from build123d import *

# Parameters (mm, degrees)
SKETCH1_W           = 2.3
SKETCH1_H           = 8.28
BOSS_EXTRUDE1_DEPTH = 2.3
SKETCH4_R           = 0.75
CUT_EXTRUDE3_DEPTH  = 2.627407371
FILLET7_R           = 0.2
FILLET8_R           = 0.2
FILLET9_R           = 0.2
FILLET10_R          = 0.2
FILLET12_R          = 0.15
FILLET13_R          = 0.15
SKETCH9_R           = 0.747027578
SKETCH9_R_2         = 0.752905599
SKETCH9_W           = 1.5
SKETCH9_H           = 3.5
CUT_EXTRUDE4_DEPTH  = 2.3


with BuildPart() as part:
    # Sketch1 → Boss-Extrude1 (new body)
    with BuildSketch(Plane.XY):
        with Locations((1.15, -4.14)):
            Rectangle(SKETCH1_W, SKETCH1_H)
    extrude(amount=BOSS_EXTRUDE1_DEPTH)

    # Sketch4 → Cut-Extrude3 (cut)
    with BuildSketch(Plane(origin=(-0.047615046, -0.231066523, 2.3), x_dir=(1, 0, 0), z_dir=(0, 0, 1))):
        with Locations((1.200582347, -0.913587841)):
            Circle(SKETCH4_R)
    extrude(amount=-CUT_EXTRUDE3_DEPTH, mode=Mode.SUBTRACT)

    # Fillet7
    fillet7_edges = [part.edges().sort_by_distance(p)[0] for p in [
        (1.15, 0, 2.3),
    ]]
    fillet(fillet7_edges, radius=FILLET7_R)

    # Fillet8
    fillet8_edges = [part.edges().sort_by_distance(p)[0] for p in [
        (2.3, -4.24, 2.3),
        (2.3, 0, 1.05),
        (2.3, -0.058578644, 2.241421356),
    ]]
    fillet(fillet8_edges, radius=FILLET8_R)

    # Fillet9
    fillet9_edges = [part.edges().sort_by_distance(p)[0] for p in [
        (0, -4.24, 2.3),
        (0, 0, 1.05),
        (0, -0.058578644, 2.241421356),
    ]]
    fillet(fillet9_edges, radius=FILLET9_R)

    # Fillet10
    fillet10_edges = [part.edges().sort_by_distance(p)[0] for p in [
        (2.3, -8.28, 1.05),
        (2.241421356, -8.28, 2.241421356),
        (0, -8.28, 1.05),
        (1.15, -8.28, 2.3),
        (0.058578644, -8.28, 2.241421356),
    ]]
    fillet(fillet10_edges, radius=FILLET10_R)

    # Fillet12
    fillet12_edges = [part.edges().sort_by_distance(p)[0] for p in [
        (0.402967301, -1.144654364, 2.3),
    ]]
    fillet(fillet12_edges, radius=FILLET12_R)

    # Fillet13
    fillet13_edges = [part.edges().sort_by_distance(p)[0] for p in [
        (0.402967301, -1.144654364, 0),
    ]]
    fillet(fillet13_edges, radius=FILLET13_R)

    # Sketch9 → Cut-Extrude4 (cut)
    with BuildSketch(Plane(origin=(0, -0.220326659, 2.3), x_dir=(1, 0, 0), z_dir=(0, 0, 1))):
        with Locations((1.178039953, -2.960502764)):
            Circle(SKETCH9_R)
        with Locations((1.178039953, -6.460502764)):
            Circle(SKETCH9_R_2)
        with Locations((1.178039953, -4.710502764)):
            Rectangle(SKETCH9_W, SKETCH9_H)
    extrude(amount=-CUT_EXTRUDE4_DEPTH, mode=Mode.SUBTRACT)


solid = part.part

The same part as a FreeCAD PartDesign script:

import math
import FreeCAD as App
import Part
import Sketcher
from FreeCAD import Vector
Q = App.Units.Quantity


def edges_at(feature, points):
    """Names of the edges that pass closest to the given points."""
    edges = feature.Shape.Edges
    near = lambda p: min(range(len(edges)), key=lambda i: edges[i].distToShape(Part.Vertex(*p))[0])
    return sorted({f"Edge{near(p) + 1}" for p in points})


def add_polygon(sketch, points):
    """Adds a closed chain of lines whose ends are joined by coincident constraints."""
    first, n = sketch.GeometryCount, len(points)
    for a, b in zip(points, points[1:] + points[:1]):
        sketch.addGeometry(Part.LineSegment(App.Vector(*a, 0), App.Vector(*b, 0)), False)
    for i in range(n):
        sketch.addConstraint(Sketcher.Constraint("Coincident", first + i, 2, first + (i + 1) % n, 1))

doc = App.newDocument("Part")
body = doc.addObject("PartDesign::Body", "Body")

# Sketch on XY plane
sketch1 = doc.addObject("Sketcher::SketchObject", "Sketch")
body.addObject(sketch1)
sketch1.AttachmentSupport = (doc.XY_Plane, [""])
sketch1.MapMode = "FlatFace"
add_polygon(sketch1, [(0, 0), (0, -8.3), (2.3, -8.3), (2.3, 0)])  # lines 0-3
sketch1.addConstraint(Sketcher.Constraint("Vertical", 0))
sketch1.addConstraint(Sketcher.Constraint("Horizontal", 1))
sketch1.addConstraint(Sketcher.Constraint("Vertical", 2))
sketch1.addConstraint(Sketcher.Constraint("Horizontal", 3))
sketch1.addConstraint(Sketcher.Constraint("Coincident", 3, 2, -1, 1))
sketch1.addConstraint(Sketcher.Constraint("DistanceX", 1, 1, 1, 2, Q("2.3 mm")))
sketch1.addConstraint(Sketcher.Constraint("DistanceY", 0, 2, 0, 1, Q("8.28 mm")))
pad1 = doc.addObject("PartDesign::Pad", "Pad")
body.addObject(pad1)
pad1.Profile = sketch1
pad1.Length = 2.3

# Sketch on XY plane
sketch2 = doc.addObject("Sketcher::SketchObject", "Sketch001")
body.addObject(sketch2)
sketch2.AttachmentSupport = (doc.XY_Plane, [""])
sketch2.MapMode = "FlatFace"
sketch2.AttachmentOffset = App.Placement(Vector(0, 0, 2.3), App.Rotation())
sketch2.addGeometry(Part.Circle(Vector(1.2, -1.1, 0), Vector(0, 0, 1), 0.8), False)
sketch2.addConstraint(Sketcher.Constraint("Diameter", 0, Q("1.5 mm")))
sketch2.addConstraint(Sketcher.Constraint("DistanceX", -1, 1, 0, 3, Q("1.152967 mm")))
sketch2.addConstraint(Sketcher.Constraint("DistanceY", 0, 3, -1, 1, Q("1.144654 mm")))
pocket1 = doc.addObject("PartDesign::Pocket", "Pocket")
body.addObject(pocket1)
pocket1.Profile = sketch2
pocket1.Length = 2.627407
doc.recompute()

fillet = doc.addObject("PartDesign::Fillet", "Fillet")
body.addObject(fillet)
fillet.Base = (pocket1, edges_at(pocket1, [(1.15, 0, 2.3)]))
fillet.Radius = 0.2
doc.recompute()

fillet2 = doc.addObject("PartDesign::Fillet", "Fillet001")
body.addObject(fillet2)
fillet2.Base = (fillet, edges_at(fillet, [(2.3, -4.24, 2.3), (2.3, 0, 1.05), (2.3, -0.059, 2.241)]))
fillet2.Radius = 0.2
doc.recompute()

fillet3 = doc.addObject("PartDesign::Fillet", "Fillet002")
body.addObject(fillet3)
fillet3.Base = (fillet2, edges_at(fillet2, [(0, -4.24, 2.3), (0, 0, 1.05), (0, -0.059, 2.241)]))
fillet3.Radius = 0.2
doc.recompute()

fillet4 = doc.addObject("PartDesign::Fillet", "Fillet003")
body.addObject(fillet4)
fillet4.Base = (fillet3, edges_at(fillet3, [
    (2.3, -8.28, 1.05),
    (2.241, -8.28, 2.241),
    (0, -8.28, 1.05),
    (1.15, -8.28, 2.3),
    (0.059, -8.28, 2.241),
]))
fillet4.Radius = 0.2
doc.recompute()

fillet5 = doc.addObject("PartDesign::Fillet", "Fillet004")
body.addObject(fillet5)
fillet5.Base = (fillet4, edges_at(fillet4, [(0.403, -1.145, 2.3)]))
fillet5.Radius = 0.15
doc.recompute()

fillet6 = doc.addObject("PartDesign::Fillet", "Fillet005")
body.addObject(fillet6)
fillet6.Base = (fillet5, edges_at(fillet5, [(0.403, -1.145, 0)]))
fillet6.Radius = 0.15

# Sketch on XY plane
sketch3 = doc.addObject("Sketcher::SketchObject", "Sketch002")
body.addObject(sketch3)
sketch3.AttachmentSupport = (doc.XY_Plane, [""])
sketch3.MapMode = "FlatFace"
sketch3.AttachmentOffset = App.Placement(Vector(0, 0, 2.3), App.Rotation())
sketch3.addGeometry(Part.ArcOfCircle(Part.Circle(Vector(1.178, -3.1808, 0), Vector(0, 0, 1), 0.747), math.radians(0), math.radians(180)), False)
sketch3.addGeometry(Part.LineSegment(Vector(0.431, -3.1808, 0), Vector(0.428, -3.1808, 0)), False)
sketch3.addGeometry(Part.LineSegment(Vector(0.428, -3.1808, 0), Vector(0.428, -6.6147, 0)), False)
sketch3.addGeometry(Part.ArcOfCircle(Part.Circle(Vector(1.178, -6.6808, 0), Vector(0, 0, 1), 0.7529), math.radians(175), math.radians(365)), False)
sketch3.addGeometry(Part.LineSegment(Vector(1.928, -6.6147, 0), Vector(1.928, -3.1808, 0)), False)
sketch3.addGeometry(Part.LineSegment(Vector(1.928, -3.1808, 0), Vector(1.9251, -3.1808, 0)), False)
sketch3.addConstraint(Sketcher.Constraint("Coincident", 0, 2, 1, 1))
sketch3.addConstraint(Sketcher.Constraint("Coincident", 1, 2, 2, 1))
sketch3.addConstraint(Sketcher.Constraint("Coincident", 2, 2, 3, 1))
sketch3.addConstraint(Sketcher.Constraint("Coincident", 3, 2, 4, 1))
sketch3.addConstraint(Sketcher.Constraint("Coincident", 4, 2, 5, 1))
sketch3.addConstraint(Sketcher.Constraint("Coincident", 5, 2, 0, 1))
sketch3.addConstraint(Sketcher.Constraint("Horizontal", 1))
sketch3.addConstraint(Sketcher.Constraint("Vertical", 2))
sketch3.addConstraint(Sketcher.Constraint("Vertical", 4))
sketch3.addConstraint(Sketcher.Constraint("Horizontal", 5))
sketch3.addConstraint(Sketcher.Constraint("Horizontal", 2, 2, 3, 2))
sketch3.addConstraint(Sketcher.Constraint("Horizontal", 1, 2, 4, 2))
sketch3.addConstraint(Sketcher.Constraint("Vertical", 0, 3, 3, 3))
sketch3.addConstraint(Sketcher.Constraint("DistanceY", 3, 3, 0, 3, Q("3.5 mm")))
sketch3.addConstraint(Sketcher.Constraint("DistanceY", 3, 3, 0, 2, Q("3.5 mm")))
sketch3.addConstraint(Sketcher.Constraint("DistanceX", 2, 2, 3, 2, Q("1.5 mm")))
sketch3.addConstraint(Sketcher.Constraint("Radius", 0, Q("0.747028 mm")))
sketch3.addConstraint(Sketcher.Constraint("Radius", 3, Q("0.752906 mm")))
sketch3.addConstraint(Sketcher.Constraint("DistanceX", -1, 1, 0, 3, Q("1.17804 mm")))
sketch3.addConstraint(Sketcher.Constraint("DistanceY", 0, 3, -1, 1, Q("3.180829 mm")))
pocket2 = doc.addObject("PartDesign::Pocket", "Pocket001")
body.addObject(pocket2)
pocket2.Profile = sketch3
pocket2.Length = 2.3

doc.recompute()
